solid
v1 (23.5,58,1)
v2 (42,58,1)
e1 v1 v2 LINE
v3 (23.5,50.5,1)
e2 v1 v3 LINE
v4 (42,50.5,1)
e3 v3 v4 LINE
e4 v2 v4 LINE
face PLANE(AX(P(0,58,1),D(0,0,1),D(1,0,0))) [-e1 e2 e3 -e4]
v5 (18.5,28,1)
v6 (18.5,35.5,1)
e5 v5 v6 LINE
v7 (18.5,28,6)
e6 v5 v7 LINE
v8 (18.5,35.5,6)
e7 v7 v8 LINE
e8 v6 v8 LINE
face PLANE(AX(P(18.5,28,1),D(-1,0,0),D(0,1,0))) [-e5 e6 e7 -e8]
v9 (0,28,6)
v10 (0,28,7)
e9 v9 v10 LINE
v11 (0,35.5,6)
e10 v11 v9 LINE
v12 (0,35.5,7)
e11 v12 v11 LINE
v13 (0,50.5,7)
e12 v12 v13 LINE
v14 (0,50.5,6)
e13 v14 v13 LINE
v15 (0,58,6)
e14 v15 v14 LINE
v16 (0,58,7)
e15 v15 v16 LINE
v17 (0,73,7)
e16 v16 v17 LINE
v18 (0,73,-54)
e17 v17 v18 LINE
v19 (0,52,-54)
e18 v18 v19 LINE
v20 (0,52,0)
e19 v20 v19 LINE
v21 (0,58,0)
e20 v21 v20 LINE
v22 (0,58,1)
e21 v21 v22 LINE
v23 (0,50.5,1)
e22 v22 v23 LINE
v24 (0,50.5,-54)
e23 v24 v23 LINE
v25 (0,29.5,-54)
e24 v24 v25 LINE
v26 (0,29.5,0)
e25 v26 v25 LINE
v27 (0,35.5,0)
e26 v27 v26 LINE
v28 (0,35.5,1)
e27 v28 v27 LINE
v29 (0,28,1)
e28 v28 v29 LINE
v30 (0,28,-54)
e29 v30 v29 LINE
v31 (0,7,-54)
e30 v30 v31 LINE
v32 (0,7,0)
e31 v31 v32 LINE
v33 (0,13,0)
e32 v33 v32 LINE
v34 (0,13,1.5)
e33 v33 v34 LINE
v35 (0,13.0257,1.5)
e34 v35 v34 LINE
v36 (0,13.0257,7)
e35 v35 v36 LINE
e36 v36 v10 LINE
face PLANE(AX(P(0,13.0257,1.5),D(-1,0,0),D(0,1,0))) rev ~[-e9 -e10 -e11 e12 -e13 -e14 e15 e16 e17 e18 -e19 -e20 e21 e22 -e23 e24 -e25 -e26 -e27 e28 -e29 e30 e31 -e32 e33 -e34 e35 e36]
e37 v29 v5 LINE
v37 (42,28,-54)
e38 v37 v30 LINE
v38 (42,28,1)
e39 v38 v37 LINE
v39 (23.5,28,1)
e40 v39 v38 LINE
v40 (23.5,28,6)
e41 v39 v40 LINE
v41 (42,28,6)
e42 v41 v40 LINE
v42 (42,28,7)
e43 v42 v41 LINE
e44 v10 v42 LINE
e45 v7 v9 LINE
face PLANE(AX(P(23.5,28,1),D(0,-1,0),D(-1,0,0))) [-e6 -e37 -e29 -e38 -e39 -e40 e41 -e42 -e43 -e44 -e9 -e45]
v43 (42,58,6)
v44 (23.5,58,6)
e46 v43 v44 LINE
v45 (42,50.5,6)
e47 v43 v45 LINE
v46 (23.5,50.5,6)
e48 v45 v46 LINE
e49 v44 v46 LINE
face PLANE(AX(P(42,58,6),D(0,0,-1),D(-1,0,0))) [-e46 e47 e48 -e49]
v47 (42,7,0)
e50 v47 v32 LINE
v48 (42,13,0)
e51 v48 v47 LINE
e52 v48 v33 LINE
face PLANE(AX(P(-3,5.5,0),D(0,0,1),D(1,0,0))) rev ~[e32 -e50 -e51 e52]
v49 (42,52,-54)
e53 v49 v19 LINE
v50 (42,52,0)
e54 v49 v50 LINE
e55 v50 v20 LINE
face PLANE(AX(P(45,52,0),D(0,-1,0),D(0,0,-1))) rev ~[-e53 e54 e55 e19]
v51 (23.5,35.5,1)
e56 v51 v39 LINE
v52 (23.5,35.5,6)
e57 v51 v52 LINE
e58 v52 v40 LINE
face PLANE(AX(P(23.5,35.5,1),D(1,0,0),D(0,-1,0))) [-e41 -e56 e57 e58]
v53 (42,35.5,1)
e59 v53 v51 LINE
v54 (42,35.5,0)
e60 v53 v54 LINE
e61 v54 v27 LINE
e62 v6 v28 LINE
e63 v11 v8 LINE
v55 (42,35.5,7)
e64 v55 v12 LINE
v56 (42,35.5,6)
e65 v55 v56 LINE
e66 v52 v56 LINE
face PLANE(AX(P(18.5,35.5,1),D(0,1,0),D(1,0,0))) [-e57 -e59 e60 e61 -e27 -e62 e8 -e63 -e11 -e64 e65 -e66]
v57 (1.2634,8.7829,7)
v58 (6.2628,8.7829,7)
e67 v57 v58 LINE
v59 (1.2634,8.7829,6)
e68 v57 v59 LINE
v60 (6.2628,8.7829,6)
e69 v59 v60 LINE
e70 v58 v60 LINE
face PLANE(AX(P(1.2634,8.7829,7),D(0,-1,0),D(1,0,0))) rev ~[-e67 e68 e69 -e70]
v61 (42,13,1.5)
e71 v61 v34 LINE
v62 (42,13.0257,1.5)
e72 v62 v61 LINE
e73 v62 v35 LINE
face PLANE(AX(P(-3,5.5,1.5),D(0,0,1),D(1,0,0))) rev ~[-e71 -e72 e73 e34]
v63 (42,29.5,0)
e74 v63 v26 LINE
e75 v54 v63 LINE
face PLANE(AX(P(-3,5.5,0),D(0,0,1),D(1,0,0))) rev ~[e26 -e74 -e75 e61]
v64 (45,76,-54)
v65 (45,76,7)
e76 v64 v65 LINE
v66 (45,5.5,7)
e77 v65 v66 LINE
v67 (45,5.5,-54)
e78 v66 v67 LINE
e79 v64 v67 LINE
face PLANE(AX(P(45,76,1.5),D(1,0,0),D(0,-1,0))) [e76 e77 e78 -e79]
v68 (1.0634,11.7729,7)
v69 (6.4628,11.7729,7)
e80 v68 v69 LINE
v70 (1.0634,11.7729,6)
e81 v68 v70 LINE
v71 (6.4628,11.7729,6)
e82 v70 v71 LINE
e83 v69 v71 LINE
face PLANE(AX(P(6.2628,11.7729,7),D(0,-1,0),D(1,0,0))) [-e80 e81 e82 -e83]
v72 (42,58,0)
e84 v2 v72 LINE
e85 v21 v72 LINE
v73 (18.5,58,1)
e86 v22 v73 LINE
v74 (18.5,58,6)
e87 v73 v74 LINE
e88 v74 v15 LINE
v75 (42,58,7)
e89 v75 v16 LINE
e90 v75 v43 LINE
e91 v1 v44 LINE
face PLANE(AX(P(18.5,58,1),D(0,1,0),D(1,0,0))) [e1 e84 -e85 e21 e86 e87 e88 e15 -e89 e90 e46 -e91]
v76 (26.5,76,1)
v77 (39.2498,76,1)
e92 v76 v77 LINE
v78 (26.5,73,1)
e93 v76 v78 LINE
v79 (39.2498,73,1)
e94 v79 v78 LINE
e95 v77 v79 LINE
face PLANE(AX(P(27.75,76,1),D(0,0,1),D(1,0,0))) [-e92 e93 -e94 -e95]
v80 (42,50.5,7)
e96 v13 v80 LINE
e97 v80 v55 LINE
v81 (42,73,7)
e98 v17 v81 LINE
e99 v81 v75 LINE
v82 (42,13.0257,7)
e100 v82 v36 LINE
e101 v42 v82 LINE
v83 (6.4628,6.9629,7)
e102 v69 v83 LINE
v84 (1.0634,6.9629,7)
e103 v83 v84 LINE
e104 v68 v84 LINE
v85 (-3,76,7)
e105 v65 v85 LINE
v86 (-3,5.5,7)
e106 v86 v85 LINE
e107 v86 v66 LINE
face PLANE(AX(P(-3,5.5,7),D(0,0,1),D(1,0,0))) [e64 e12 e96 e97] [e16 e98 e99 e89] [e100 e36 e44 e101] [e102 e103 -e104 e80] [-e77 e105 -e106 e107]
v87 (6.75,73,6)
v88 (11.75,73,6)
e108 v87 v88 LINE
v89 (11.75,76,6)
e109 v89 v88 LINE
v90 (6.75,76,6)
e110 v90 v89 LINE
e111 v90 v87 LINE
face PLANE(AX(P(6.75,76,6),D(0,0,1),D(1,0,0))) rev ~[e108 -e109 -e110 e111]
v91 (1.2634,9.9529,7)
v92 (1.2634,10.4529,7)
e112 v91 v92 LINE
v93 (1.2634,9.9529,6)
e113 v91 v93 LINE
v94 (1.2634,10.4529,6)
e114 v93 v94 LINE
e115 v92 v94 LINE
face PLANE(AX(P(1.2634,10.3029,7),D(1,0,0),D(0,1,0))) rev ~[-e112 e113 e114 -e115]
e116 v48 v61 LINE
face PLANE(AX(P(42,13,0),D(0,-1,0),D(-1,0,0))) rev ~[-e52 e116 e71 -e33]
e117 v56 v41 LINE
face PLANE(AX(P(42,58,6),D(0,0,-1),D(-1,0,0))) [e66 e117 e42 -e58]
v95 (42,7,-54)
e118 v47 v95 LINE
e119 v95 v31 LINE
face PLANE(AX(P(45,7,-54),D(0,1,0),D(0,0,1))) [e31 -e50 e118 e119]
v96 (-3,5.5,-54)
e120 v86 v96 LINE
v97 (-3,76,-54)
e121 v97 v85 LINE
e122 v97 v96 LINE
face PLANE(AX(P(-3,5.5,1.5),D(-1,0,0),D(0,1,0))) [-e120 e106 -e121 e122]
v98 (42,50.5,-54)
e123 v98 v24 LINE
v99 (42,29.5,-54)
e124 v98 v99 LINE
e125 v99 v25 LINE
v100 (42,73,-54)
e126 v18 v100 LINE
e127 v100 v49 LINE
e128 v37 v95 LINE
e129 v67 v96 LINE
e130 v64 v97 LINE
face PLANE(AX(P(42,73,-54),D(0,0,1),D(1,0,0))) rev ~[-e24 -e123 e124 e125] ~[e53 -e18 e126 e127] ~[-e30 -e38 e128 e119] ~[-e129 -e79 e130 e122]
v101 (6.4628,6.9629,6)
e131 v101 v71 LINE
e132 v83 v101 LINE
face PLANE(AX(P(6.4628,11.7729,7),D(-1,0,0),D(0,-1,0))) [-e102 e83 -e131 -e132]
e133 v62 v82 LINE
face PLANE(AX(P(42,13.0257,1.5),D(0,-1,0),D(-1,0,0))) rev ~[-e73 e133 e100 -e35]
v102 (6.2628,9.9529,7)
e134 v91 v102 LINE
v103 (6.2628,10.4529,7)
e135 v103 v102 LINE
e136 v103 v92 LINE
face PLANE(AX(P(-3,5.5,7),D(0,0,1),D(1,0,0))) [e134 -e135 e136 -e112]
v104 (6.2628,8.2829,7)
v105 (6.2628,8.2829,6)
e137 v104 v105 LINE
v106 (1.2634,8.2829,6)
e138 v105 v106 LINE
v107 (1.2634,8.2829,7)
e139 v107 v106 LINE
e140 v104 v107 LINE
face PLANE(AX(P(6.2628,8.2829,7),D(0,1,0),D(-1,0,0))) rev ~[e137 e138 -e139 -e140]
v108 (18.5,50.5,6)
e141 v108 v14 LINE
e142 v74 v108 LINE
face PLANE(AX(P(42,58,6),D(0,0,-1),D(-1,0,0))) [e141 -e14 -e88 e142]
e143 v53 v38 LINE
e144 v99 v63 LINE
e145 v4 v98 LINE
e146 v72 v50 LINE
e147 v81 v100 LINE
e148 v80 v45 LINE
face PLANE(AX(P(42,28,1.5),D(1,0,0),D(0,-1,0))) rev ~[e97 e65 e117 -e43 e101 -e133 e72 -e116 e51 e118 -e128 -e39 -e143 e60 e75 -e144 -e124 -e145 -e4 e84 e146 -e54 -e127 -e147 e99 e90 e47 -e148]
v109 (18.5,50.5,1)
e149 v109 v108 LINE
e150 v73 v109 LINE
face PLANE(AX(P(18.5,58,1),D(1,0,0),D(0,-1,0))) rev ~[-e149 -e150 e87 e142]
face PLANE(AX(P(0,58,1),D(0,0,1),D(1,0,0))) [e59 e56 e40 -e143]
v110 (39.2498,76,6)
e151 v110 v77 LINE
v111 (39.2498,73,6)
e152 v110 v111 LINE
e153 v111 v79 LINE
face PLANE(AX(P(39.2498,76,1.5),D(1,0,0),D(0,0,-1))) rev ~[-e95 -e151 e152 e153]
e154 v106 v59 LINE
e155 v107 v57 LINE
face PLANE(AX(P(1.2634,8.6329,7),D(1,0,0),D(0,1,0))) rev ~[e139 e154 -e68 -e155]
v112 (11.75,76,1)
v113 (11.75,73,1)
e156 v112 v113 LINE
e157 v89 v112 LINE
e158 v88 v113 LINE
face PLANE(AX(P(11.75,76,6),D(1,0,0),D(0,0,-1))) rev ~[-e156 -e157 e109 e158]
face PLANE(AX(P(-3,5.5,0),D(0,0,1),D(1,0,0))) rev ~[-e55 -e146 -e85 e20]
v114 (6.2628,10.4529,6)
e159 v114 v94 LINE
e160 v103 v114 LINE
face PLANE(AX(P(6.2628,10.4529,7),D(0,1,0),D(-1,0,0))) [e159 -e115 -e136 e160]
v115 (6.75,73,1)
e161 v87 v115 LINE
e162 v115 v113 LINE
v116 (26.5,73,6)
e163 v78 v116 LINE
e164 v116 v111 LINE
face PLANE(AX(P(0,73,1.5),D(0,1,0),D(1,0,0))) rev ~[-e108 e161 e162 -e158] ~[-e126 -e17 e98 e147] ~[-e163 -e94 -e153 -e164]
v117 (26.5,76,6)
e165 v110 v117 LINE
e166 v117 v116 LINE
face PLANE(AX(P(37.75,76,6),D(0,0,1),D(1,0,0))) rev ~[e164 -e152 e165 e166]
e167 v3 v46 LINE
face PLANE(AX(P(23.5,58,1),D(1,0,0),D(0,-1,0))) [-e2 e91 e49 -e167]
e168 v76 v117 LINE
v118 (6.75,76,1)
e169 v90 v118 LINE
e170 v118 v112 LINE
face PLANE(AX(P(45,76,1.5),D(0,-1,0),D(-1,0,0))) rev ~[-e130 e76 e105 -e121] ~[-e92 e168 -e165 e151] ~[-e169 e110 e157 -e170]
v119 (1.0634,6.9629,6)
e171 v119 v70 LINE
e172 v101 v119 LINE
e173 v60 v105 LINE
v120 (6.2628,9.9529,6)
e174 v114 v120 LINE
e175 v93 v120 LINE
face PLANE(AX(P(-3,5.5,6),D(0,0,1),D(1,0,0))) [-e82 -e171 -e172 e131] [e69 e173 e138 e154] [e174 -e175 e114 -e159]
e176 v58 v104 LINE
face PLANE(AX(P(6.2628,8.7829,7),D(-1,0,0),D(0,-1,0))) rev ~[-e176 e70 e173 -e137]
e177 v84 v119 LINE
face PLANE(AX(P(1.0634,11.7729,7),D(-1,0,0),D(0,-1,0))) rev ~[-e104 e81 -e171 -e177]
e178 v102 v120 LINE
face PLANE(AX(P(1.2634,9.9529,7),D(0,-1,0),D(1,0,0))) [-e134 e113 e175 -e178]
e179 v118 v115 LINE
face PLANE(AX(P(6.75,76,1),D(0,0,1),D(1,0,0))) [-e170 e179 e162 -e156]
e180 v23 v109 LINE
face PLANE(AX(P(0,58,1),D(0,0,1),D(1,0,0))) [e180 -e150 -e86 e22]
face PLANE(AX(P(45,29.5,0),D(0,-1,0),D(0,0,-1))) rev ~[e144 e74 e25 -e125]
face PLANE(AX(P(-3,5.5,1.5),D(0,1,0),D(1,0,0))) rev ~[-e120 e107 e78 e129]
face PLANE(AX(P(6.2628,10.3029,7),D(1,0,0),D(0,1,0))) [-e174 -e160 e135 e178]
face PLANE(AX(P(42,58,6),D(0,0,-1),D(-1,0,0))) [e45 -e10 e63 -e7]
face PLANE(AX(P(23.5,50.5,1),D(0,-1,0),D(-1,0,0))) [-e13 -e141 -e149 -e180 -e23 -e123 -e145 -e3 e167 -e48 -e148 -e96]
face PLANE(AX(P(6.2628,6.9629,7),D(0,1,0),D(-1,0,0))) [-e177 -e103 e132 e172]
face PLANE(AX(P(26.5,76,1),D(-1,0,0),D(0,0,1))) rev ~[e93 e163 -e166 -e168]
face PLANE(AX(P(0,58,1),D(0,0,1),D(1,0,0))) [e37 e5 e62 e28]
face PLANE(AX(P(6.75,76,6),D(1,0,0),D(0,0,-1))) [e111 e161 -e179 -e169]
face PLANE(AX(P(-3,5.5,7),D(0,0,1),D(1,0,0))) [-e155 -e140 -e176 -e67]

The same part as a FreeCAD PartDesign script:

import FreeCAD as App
import Part
import Sketcher

V = App.Vector
Q = App.Units.Quantity

doc = App.newDocument("Part")
body = doc.addObject("PartDesign::Body", "Body")
body.AllowCompound = True

# Sketch on XZ plane
sketch1 = body.newObject("Sketcher::SketchObject", "Sketch")
sketch1.AttachmentSupport = (doc.getObject("XZ_Plane"), [""])
sketch1.MapMode = "FlatFace"
sketch1.AttachmentOffset = App.Placement(V(0, 0, -73), App.Rotation())
sketch1.addGeometry([
    Part.LineSegment(V(0, -54, 0), V(0, 0, 0)),  # 0
    Part.LineSegment(V(0, 0, 0), V(-3, 0, 0)),  # 1
    Part.LineSegment(V(-3, 0, 0), V(-3, -54, 0)),  # 2
    Part.LineSegment(V(-3, -54, 0), V(0, -54, 0)),  # 3
    Part.LineSegment(V(42, 0, 0), V(42, -54, 0)),  # 4
    Part.LineSegment(V(42, -54, 0), V(45, -54, 0)),  # 5
    Part.LineSegment(V(45, -54, 0), V(45, 0, 0)),  # 6
    Part.LineSegment(V(45, 0, 0), V(42, 0, 0)),  # 7
], False)
sketch1.addConstraint([
    Sketcher.Constraint("Coincident", 0, 2, 1, 1),
    Sketcher.Constraint("Coincident", 1, 2, 2, 1),
    Sketcher.Constraint("Coincident", 2, 2, 3, 1),
    Sketcher.Constraint("Coincident", 3, 2, 0, 1),
    Sketcher.Constraint("Coincident", 4, 2, 5, 1),
    Sketcher.Constraint("Coincident", 5, 2, 6, 1),
    Sketcher.Constraint("Coincident", 6, 2, 7, 1),
    Sketcher.Constraint("Coincident", 7, 2, 4, 1),
    Sketcher.Constraint("Vertical", 0),
    Sketcher.Constraint("Horizontal", 1),
    Sketcher.Constraint("Vertical", 2),
    Sketcher.Constraint("Horizontal", 3),
    Sketcher.Constraint("Vertical", 4),
    Sketcher.Constraint("Horizontal", 5),
    Sketcher.Constraint("Vertical", 6),
    Sketcher.Constraint("Horizontal", 7),
    Sketcher.Constraint("Coincident", 0, 2, -1, 1),
    Sketcher.Constraint("PointOnObject", 6, 2, -1),
    Sketcher.Constraint("Horizontal", 3, 2, 4, 2),
    Sketcher.Constraint("Equal", 3, 5),
    Sketcher.Constraint("DistanceX", 1, 2, 1, 1, Q("3 mm")),
    Sketcher.Constraint("DistanceY", 0, 1, 0, 2, Q("54 mm")),
    Sketcher.Constraint("DistanceX", -1, 1, 4, 2, Q("42 mm")),
])
pad1 = body.newObject("PartDesign::Pad", "Pad")
pad1.Profile = sketch1
pad1.Length = 67.5

# Sketch on XZ plane
sketch2 = body.newObject("Sketcher::SketchObject", "Sketch001")
sketch2.AttachmentSupport = (doc.getObject("XZ_Plane"), [""])
sketch2.MapMode = "FlatFace"
sketch2.AttachmentOffset = App.Placement(V(0, 0, -73), App.Rotation())
sketch2.addGeometry([
    Part.LineSegment(V(45, -57, 0), V(-3, -57, 0)),  # 0
    Part.LineSegment(V(-3, -57, 0), V(-3, 3, 0)),  # 1
    Part.LineSegment(V(-3, 3, 0), V(45, 3, 0)),  # 2
    Part.LineSegment(V(45, 3, 0), V(45, -57, 0)),  # 3
    Part.Circle(V(4.2, -5.2, 0), V(0, 0, 1), 1.2),  # 4
    Part.Circle(V(37.7, -5.2, 0), V(0, 0, 1), 1.2),  # 5
    Part.Circle(V(4.2, -48.8, 0), V(0, 0, 1), 1.2),  # 6
    Part.Circle(V(37.7, -48.8, 0), V(0, 0, 1), 1.2),  # 7
], False)
sketch2.addConstraint([
    Sketcher.Constraint("Coincident", 0, 2, 1, 1),
    Sketcher.Constraint("Coincident", 1, 2, 2, 1),
    Sketcher.Constraint("Coincident", 2, 2, 3, 1),
    Sketcher.Constraint("Coincident", 3, 2, 0, 1),
    Sketcher.Constraint("Horizontal", 0),
    Sketcher.Constraint("Vertical", 1),
    Sketcher.Constraint("Horizontal", 2),
    Sketcher.Constraint("Vertical", 3),
    Sketcher.Constraint("Equal", 4, 5),
    Sketcher.Constraint("Equal", 5, 6),
    Sketcher.Constraint("Equal", 6, 7),
    Sketcher.Constraint("Horizontal", 4, 3, 5, 3),
    Sketcher.Constraint("Horizontal", 6, 3, 7, 3),
    Sketcher.Constraint("Vertical", 4, 3, 6, 3),
    Sketcher.Constraint("Vertical", 5, 3, 7, 3),
    Sketcher.Constraint("Diameter", 4, Q("2.5 mm")),
    Sketcher.Constraint("DistanceX", 0, 2, 0, 1, Q("48 mm")),
    Sketcher.Constraint("DistanceY", 1, 1, 1, 2, Q("60 mm")),
    Sketcher.Constraint("DistanceX", 0, 2, -1, 1, Q("3 mm")),
    Sketcher.Constraint("DistanceY", 0, 2, -1, 1, Q("57 mm")),
    Sketcher.Constraint("DistanceX", 4, 3, 5, 3, Q("33.5 mm")),
    Sketcher.Constraint("DistanceY", 6, 3, 4, 3, Q("43.5 mm")),
    Sketcher.Constraint("DistanceY", 4, 3, -1, 1, Q("5.25 mm")),
    Sketcher.Constraint("DistanceX", -1, 1, 4, 3, Q("4.2498 mm")),
])
pad2 = body.newObject("PartDesign::Pad", "Pad001")
pad2.Profile = sketch2
pad2.Length = 3
pad2.Reversed = True

# Sketch on XZ plane
sketch3 = body.newObject("Sketcher::SketchObject", "Sketch002")
sketch3.AttachmentSupport = (doc.getObject("XZ_Plane"), [""])
sketch3.MapMode = "FlatFace"
sketch3.AttachmentOffset = App.Placement(V(0, 0, -76), App.Rotation())
sketch3.addGeometry([
    Part.Circle(V(4.2, -48.8, 0), V(0, 0, 1), 1.2),
    Part.Circle(V(37.7, -48.8, 0), V(0, 0, 1), 1.2),
    Part.Circle(V(37.7, -5.2, 0), V(0, 0, 1), 1.2),
    Part.Circle(V(4.2, -5.2, 0), V(0, 0, 1), 1.2),
], False)
sketch3.addConstraint([
    Sketcher.Constraint("Equal", 0, 1),
    Sketcher.Constraint("Equal", 1, 2),
    Sketcher.Constraint("Equal", 2, 3),
    Sketcher.Constraint("Horizontal", 0, 3, 1, 3),
    Sketcher.Constraint("Horizontal", 2, 3, 3, 3),
    Sketcher.Constraint("Vertical", 1, 3, 2, 3),
    Sketcher.Constraint("Vertical", 0, 3, 3, 3),
    Sketcher.Constraint("Diameter", 0, Q("2.5 mm")),
    Sketcher.Constraint("DistanceX", 0, 3, 1, 3, Q("33.5 mm")),
    Sketcher.Constraint("DistanceY", 1, 3, 2, 3, Q("43.5 mm")),
    Sketcher.Constraint("DistanceY", 0, 3, -1, 1, Q("48.75 mm")),
    Sketcher.Constraint("DistanceX", -1, 1, 0, 3, Q("4.2498 mm")),
])
pad3 = body.newObject("PartDesign::Pad", "Pad002")
pad3.Profile = sketch3
pad3.Length = 3

# Sketch on YZ plane
sketch4 = body.newObject("Sketcher::SketchObject", "Sketch003")
sketch4.AttachmentSupport = (doc.getObject("YZ_Plane"), [""])
sketch4.MapMode = "FlatFace"
sketch4.AttachmentOffset = App.Placement(V(0, 0, 45), App.Rotation())
sketch4.addGeometry([
    Part.LineSegment(V(7, 0, 0), V(5.5, 0, 0)),  # 0
    Part.LineSegment(V(5.5, 0, 0), V(5.5, -54, 0)),  # 1
    Part.LineSegment(V(5.5, -54, 0), V(7, -54, 0)),  # 2
    Part.LineSegment(V(7, -54, 0), V(7, 0, 0)),  # 3
    Part.LineSegment(V(29.5, 0, 0), V(28, 0, 0)),  # 4
    Part.LineSegment(V(28, 0, 0), V(28, -54, 0)),  # 5
    Part.LineSegment(V(28, -54, 0), V(29.5, -54, 0)),  # 6
    Part.LineSegment(V(29.5, -54, 0), V(29.5, 0, 0)),  # 7
    Part.LineSegment(V(52, 0, 0), V(50.5, 0, 0)),  # 8
    Part.LineSegment(V(50.5, 0, 0), V(50.5, -54, 0)),  # 9
    Part.LineSegment(V(50.5, -54, 0), V(52, -54, 0)),  # 10
    Part.LineSegment(V(52, -54, 0), V(52, 0, 0)),  # 11
], False)
sketch4.addConstraint([
    Sketcher.Constraint("Coincident", 0, 2, 1, 1),
    Sketcher.Constraint("Coincident", 1, 2, 2, 1),
    Sketcher.Constraint("Coincident", 2, 2, 3, 1),
    Sketcher.Constraint("Coincident", 3, 2, 0, 1),
    Sketcher.Constraint("Coincident", 4, 2, 5, 1),
    Sketcher.Constraint("Coincident", 5, 2, 6, 1),
    Sketcher.Constraint("Coincident", 6, 2, 7, 1),
    Sketcher.Constraint("Coincident", 7, 2, 4, 1),
    Sketcher.Constraint("Coincident", 8, 2, 9, 1),
    Sketcher.Constraint("Coincident", 9, 2, 10, 1),
    Sketcher.Constraint("Coincident", 10, 2, 11, 1),
    Sketcher.Constraint("Coincident", 11, 2, 8, 1),
    Sketcher.Constraint("Horizontal", 0),
    Sketcher.Constraint("Vertical", 1),
    Sketcher.Constraint("Horizontal", 2),
    Sketcher.Constraint("Vertical", 3),
    Sketcher.Constraint("Horizontal", 4),
    Sketcher.Constraint("Vertical", 5),
    Sketcher.Constraint("Horizontal", 6),
    Sketcher.Constraint("Vertical", 7),
    Sketcher.Constraint("Horizontal", 8),
    Sketcher.Constraint("Vertical", 9),
    Sketcher.Constraint("Horizontal", 10),
    Sketcher.Constraint("Vertical", 11),
    Sketcher.Constraint("PointOnObject", 0, 2, -1),
    Sketcher.Constraint("PointOnObject", 4, 2, -1),
    Sketcher.Constraint("PointOnObject", 8, 2, -1),
    Sketcher.Constraint("Horizontal", 2, 2, 5, 2),
    Sketcher.Constraint("Horizontal", 6, 2, 9, 2),
    Sketcher.Constraint("Equal", 2, 4),
    Sketcher.Constraint("Equal", 6, 8),
    Sketcher.Constraint("DistanceX", 0, 2, 0, 1, Q("1.5 mm")),
    Sketcher.Constraint("DistanceX", 3, 2, 4, 2, Q("21 mm")),
    Sketcher.Constraint("DistanceX", 7, 2, 8, 2, Q("21 mm")),
    Sketcher.Constraint("DistanceY", 1, 2, 1, 1, Q("54 mm")),
    Sketcher.Constraint("DistanceX", -1, 1, 2, 2, Q("7 mm")),
])
pad4 = body.newObject("PartDesign::Pad", "Pad003")
pad4.Profile = sketch4
pad4.Length = 47.25
pad4.Reversed = True

# Sketch on XY plane
sketch5 = body.newObject("Sketcher::SketchObject", "Sketch004")
sketch5.AttachmentSupport = (doc.getObject("XY_Plane"), [""])
sketch5.MapMode = "FlatFace"
sketch5.addGeometry([
    Part.LineSegment(V(42, 58, 0), V(0, 58, 0)),  # 0
    Part.LineSegment(V(0, 58, 0), V(0, 52, 0)),  # 1
    Part.LineSegment(V(0, 52, 0), V(42, 52, 0)),  # 2
    Part.LineSegment(V(42, 52, 0), V(42, 58, 0)),  # 3
    Part.LineSegment(V(42, 30, 0), V(42, 36, 0)),  # 4
    Part.LineSegment(V(42, 36, 0), V(0, 36, 0)),  # 5
    Part.LineSegment(V(0, 36, 0), V(0, 30, 0)),  # 6
    Part.LineSegment(V(0, 30, 0), V(42, 30, 0)),  # 7
    Part.LineSegment(V(42, 7, 0), V(42, 13, 0)),  # 8
    Part.LineSegment(V(42, 13, 0), V(0, 13, 0)),  # 9
    Part.LineSegment(V(0, 13, 0), V(0, 7, 0)),  # 10
    Part.LineSegment(V(0, 7, 0), V(42, 7, 0)),  # 11
], False)
sketch5.addConstraint([
    Sketcher.Constraint("Coincident", 0, 2, 1, 1),
    Sketcher.Constraint("Coincident", 1, 2, 2, 1),
    Sketcher.Constraint("Coincident", 2, 2, 3, 1),
    Sketcher.Constraint("Coincident", 3, 2, 0, 1),
    Sketcher.Constraint("Coincident", 4, 2, 5, 1),
    Sketcher.Constraint("Coincident", 5, 2, 6, 1),
    Sketcher.Constraint("Coincident", 6, 2, 7, 1),
    Sketcher.Constraint("Coincident", 7, 2, 4, 1),
    Sketcher.Constraint("Coincident", 8, 2, 9, 1),
    Sketcher.Constraint("Coincident", 9, 2, 10, 1),
    Sketcher.Constraint("Coincident", 10, 2, 11, 1),
    Sketcher.Constraint("Coincident", 11, 2, 8, 1),
    Sketcher.Constraint("Horizontal", 0),
    Sketcher.Constraint("Vertical", 1),
    Sketcher.Constraint("Horizontal", 2),
    Sketcher.Constraint("Vertical", 3),
    Sketcher.Constraint("Vertical", 4),
    Sketcher.Constraint("Horizontal", 5),
    Sketcher.Constraint("Vertical", 6),
    Sketcher.Constraint("Horizontal", 7),
    Sketcher.Constraint("Vertical", 8),
    Sketcher.Constraint("Horizontal", 9),
    Sketcher.Constraint("Vertical", 10),
    Sketcher.Constraint("Horizontal", 11),
    Sketcher.Constraint("PointOnObject", 0, 2, -2),
    Sketcher.Constraint("PointOnObject", 5, 2, -2),
    Sketcher.Constraint("PointOnObject", 9, 2, -2),
    Sketcher.Constraint("Vertical", 3, 2, 4, 2),
    Sketcher.Constraint("Vertical", 7, 2, 8, 2),
    Sketcher.Constraint("Equal", 3, 4),
    Sketcher.Constraint("Equal", 6, 8),
    Sketcher.Constraint("DistanceY", 1, 2, 1, 1, Q("6 mm")),
    Sketcher.Constraint("DistanceX", 0, 2, 0, 1, Q("42 mm")),
    Sketcher.Constraint("DistanceY", -1, 1, 0, 2, Q("58 mm")),
    Sketcher.Constraint("DistanceY", -1, 1, 8, 2, Q("13 mm")),
    Sketcher.Constraint("DistanceY", -1, 1, 4, 2, Q("35.5 mm")),
])
pad5 = body.newObject("PartDesign::Pad", "Pad004")
pad5.Profile = sketch5
pad5.Length = 1.5

# Sketch on XY plane
sketch6 = body.newObject("Sketcher::SketchObject", "Sketch005")
sketch6.AttachmentSupport = (doc.getObject("XY_Plane"), [""])
sketch6.MapMode = "FlatFace"
sketch6.addGeometry([
    Part.LineSegment(V(-3, 5.5, 0), V(45, 5.5, 0)),  # 0
    Part.LineSegment(V(45, 5.5, 0), V(45, 73, 0)),  # 1
    Part.LineSegment(V(45, 73, 0), V(42, 73, 0)),  # 2
    Part.LineSegment(V(42, 73, 0), V(42, 52, 0)),  # 3
    Part.LineSegment(V(42, 52, 0), V(0, 52, 0)),  # 4
    Part.LineSegment(V(0, 52, 0), V(0, 73, 0)),  # 5
    Part.LineSegment(V(0, 73, 0), V(-3, 73, 0)),  # 6
    Part.LineSegment(V(-3, 73, 0), V(-3, 5.5, 0)),  # 7
    Part.LineSegment(V(0, 7, 0), V(0, 28, 0)),  # 8
    Part.LineSegment(V(0, 28, 0), V(42, 28, 0)),  # 9
    Part.LineSegment(V(42, 28, 0), V(42, 7, 0)),  # 10
    Part.LineSegment(V(42, 7, 0), V(0, 7, 0)),  # 11
    Part.LineSegment(V(42, 50.5, 0), V(42, 29.5, 0)),  # 12
    Part.LineSegment(V(42, 29.5, 0), V(0, 29.5, 0)),  # 13
    Part.LineSegment(V(0, 29.5, 0), V(0, 50.5, 0)),  # 14
    Part.LineSegment(V(0, 50.5, 0), V(42, 50.5, 0)),  # 15
], False)
sketch6.addConstraint([
    Sketcher.Constraint("Coincident", 0, 2, 1, 1),
    Sketcher.Constraint("Coincident", 1, 2, 2, 1),
    Sketcher.Constraint("Coincident", 2, 2, 3, 1),
    Sketcher.Constraint("Coincident", 3, 2, 4, 1),
    Sketcher.Constraint("Coincident", 4, 2, 5, 1),
    Sketcher.Constraint("Coincident", 5, 2, 6, 1),
    Sketcher.Constraint("Coincident", 6, 2, 7, 1),
    Sketcher.Constraint("Coincident", 7, 2, 0, 1),
    Sketcher.Constraint("Coincident", 8, 2, 9, 1),
    Sketcher.Constraint("Coincident", 9, 2, 10, 1),
    Sketcher.Constraint("Coincident", 10, 2, 11, 1),
    Sketcher.Constraint("Coincident", 11, 2, 8, 1),
    Sketcher.Constraint("Coincident", 12, 2, 13, 1),
    Sketcher.Constraint("Coincident", 13, 2, 14, 1),
    Sketcher.Constraint("Coincident", 14, 2, 15, 1),
    Sketcher.Constraint("Coincident", 15, 2, 12, 1),
    Sketcher.Constraint("Horizontal", 0),
    Sketcher.Constraint("Vertical", 1),
    Sketcher.Constraint("Horizontal", 2),
    Sketcher.Constraint("Vertical", 3),
    Sketcher.Constraint("Horizontal", 4),
    Sketcher.Constraint("Vertical", 5),
    Sketcher.Constraint("Horizontal", 6),
    Sketcher.Constraint("Vertical", 7),
    Sketcher.Constraint("Vertical", 8),
    Sketcher.Constraint("Horizontal", 9),
    Sketcher.Constraint("Vertical", 10),
    Sketcher.Constraint("Horizontal", 11),
    Sketcher.Constraint("Vertical", 12),
    Sketcher.Constraint("Horizontal", 13),
    Sketcher.Constraint("Vertical", 14),
    Sketcher.Constraint("Horizontal", 15),
    Sketcher.Constraint("PointOnObject", 4, 2, -2),
    Sketcher.Constraint("PointOnObject", 8, 2, -2),
    Sketcher.Constraint("PointOnObject", 13, 2, -2),
    Sketcher.Constraint("Horizontal", 2, 2, 5, 2),
    Sketcher.Constraint("Vertical", 3, 2, 9, 2),
    Sketcher.Constraint("Vertical", 10, 2, 12, 2),
    Sketcher.Constraint("Equal", 2, 6),
    Sketcher.Constraint("Equal", 5, 8),
    Sketcher.Constraint("Equal", 10, 12),
    Sketcher.Constraint("DistanceY", 3, 2, 3, 1, Q("21 mm")),
    Sketcher.Constraint("DistanceX", 0, 1, 0, 2, Q("48 mm")),
    Sketcher.Constraint("DistanceX", 2, 2, 2, 1, Q("3 mm")),
    Sketcher.Constraint("DistanceY", 1, 1, 1, 2, Q("67.5 mm")),
    Sketcher.Constraint("DistanceY", -1, 1, 1, 2, Q("73 mm")),
    Sketcher.Constraint("DistanceY", -1, 1, 8, 2, Q("28 mm")),
    Sketcher.Constraint("DistanceY", 0, 2, 12, 2, Q("24 mm")),
])
pad6 = body.newObject("PartDesign::Pad", "Pad005")
pad6.Profile = sketch6
pad6.Length = 1.5

# Sketch on XY plane
sketch7 = body.newObject("Sketcher::SketchObject", "Sketch006")
sketch7.AttachmentSupport = (doc.getObject("XY_Plane"), [""])
sketch7.MapMode = "FlatFace"
sketch7.AttachmentOffset = App.Placement(V(0, 0, 3), App.Rotation())
sketch7.addGeometry([
    Part.LineSegment(V(-3, 73, 0), V(45, 73, 0)),
    Part.LineSegment(V(45, 73, 0), V(45, 76, 0)),
    Part.LineSegment(V(45, 76, 0), V(-3, 76, 0)),
    Part.LineSegment(V(-3, 76, 0), V(-3, 73, 0)),
], False)
sketch7.addConstraint([
    Sketcher.Constraint("Coincident", 0, 2, 1, 1),
    Sketcher.Constraint("Coincident", 1, 2, 2, 1),
    Sketcher.Constraint("Coincident", 2, 2, 3, 1),
    Sketcher.Constraint("Coincident", 3, 2, 0, 1),
    Sketcher.Constraint("Horizontal", 0),
    Sketcher.Constraint("Vertical", 1),
    Sketcher.Constraint("Horizontal", 2),
    Sketcher.Constraint("Vertical", 3),
    Sketcher.Constraint("DistanceX", 0, 1, 0, 2, Q("48 mm")),
    Sketcher.Constraint("DistanceY", 1, 1, 1, 2, Q("3 mm")),
    Sketcher.Constraint("DistanceX", -1, 1, 0, 2, Q("45 mm")),
    Sketcher.Constraint("DistanceY", -1, 1, 0, 2, Q("73 mm")),
])
pocket1 = body.newObject("PartDesign::Pocket", "Pocket")
pocket1.Profile = sketch7
pocket1.Length = 1.5

# Sketch on XY plane
sketch8 = body.newObject("Sketcher::SketchObject", "Sketch007")
sketch8.AttachmentSupport = (doc.getObject("XY_Plane"), [""])
sketch8.MapMode = "FlatFace"
sketch8.AttachmentOffset = App.Placement(V(0, 0, -57), App.Rotation())
sketch8.addGeometry([
    Part.LineSegment(V(-3, 76, 0), V(45, 76, 0)),
    Part.LineSegment(V(45, 76, 0), V(45, 73, 0)),
    Part.LineSegment(V(45, 73, 0), V(-3, 73, 0)),
    Part.LineSegment(V(-3, 73, 0), V(-3, 76, 0)),
], False)
sketch8.addConstraint([
    Sketcher.Constraint("Coincident", 0, 2, 1, 1),
    Sketcher.Constraint("Coincident", 1, 2, 2, 1),
    Sketcher.Constraint("Coincident", 2, 2, 3, 1),
    Sketcher.Constraint("Coincident", 3, 2, 0, 1),
    Sketcher.Constraint("Horizontal", 0),
    Sketcher.Constraint("Vertical", 1),
    Sketcher.Constraint("Horizontal", 2),
    Sketcher.Constraint("Vertical", 3),
    Sketcher.Constraint("DistanceX", 0, 1, 0, 2, Q("48 mm")),
    Sketcher.Constraint("DistanceY", 1, 2, 1, 1, Q("3 mm")),
    Sketcher.Constraint("DistanceX", -1, 1, 0, 2, Q("45 mm")),
    Sketcher.Constraint("DistanceY", -1, 1, 0, 2, Q("76 mm")),
])
pocket2 = body.newObject("PartDesign::Pocket", "Pocket001")
pocket2.Profile = sketch8
pocket2.Length = 3
pocket2.Reversed = True

# Sketch on XY plane
sketch9 = body.newObject("Sketcher::SketchObject", "Sketch008")
sketch9.AttachmentSupport = (doc.getObject("XY_Plane"), [""])
sketch9.MapMode = "FlatFace"
sketch9.AttachmentOffset = App.Placement(V(0, 0, 1.5), App.Rotation())
sketch9.addGeometry([
    Part.LineSegment(V(45, 6, 0), V(45, 76, 0)),  # 0
    Part.LineSegment(V(45, 76, 0), V(-3, 76, 0)),  # 1
    Part.LineSegment(V(-3, 76, 0), V(-3, 6, 0)),  # 2
    Part.LineSegment(V(-3, 6, 0), V(45, 6, 0)),  # 3
    Part.LineSegment(V(0, 13, 0), V(0, 28, 0)),  # 4
    Part.LineSegment(V(0, 28, 0), V(42, 28, 0)),  # 5
    Part.LineSegment(V(42, 28, 0), V(42, 13, 0)),  # 6
    Part.LineSegment(V(42, 13, 0), V(0, 13, 0)),  # 7
    Part.LineSegment(V(0, 36, 0), V(0, 50, 0)),  # 8
    Part.LineSegment(V(0, 50, 0), V(42, 50, 0)),  # 9
    Part.LineSegment(V(42, 50, 0), V(42, 36, 0)),  # 10
    Part.LineSegment(V(42, 36, 0), V(0, 36, 0)),  # 11
    Part.LineSegment(V(42, 58, 0), V(0, 58, 0)),  # 12
    Part.LineSegment(V(0, 58, 0), V(0, 73, 0)),  # 13
    Part.LineSegment(V(0, 73, 0), V(42, 73, 0)),  # 14
    Part.LineSegment(V(42, 73, 0), V(42, 58, 0)),  # 15
], False)
sketch9.addConstraint([
    Sketcher.Constraint("Coincident", 0, 2, 1, 1),
    Sketcher.Constraint("Coincident", 1, 2, 2, 1),
    Sketcher.Constraint("Coincident", 2, 2, 3, 1),
    Sketcher.Constraint("Coincident", 3, 2, 0, 1),
    Sketcher.Constraint("Coincident", 4, 2, 5, 1),
    Sketcher.Constraint("Coincident", 5, 2, 6, 1),
    Sketcher.Constraint("Coincident", 6, 2, 7, 1),
    Sketcher.Constraint("Coincident", 7, 2, 4, 1),
    Sketcher.Constraint("Coincident", 8, 2, 9, 1),
    Sketcher.Constraint("Coincident", 9, 2, 10, 1),
    Sketcher.Constraint("Coincident", 10, 2, 11, 1),
    Sketcher.Constraint("Coincident", 11, 2, 8, 1),
    Sketcher.Constraint("Coincident", 12, 2, 13, 1),
    Sketcher.Constraint("Coincident", 13, 2, 14, 1),
    Sketcher.Constraint("Coincident", 14, 2, 15, 1),
    Sketcher.Constraint("Coincident", 15, 2, 12, 1),
    Sketcher.Constraint("Vertical", 0),
    Sketcher.Constraint("Horizontal", 1),
    Sketcher.Constraint("Vertical", 2),
    Sketcher.Constraint("Horizontal", 3),
    Sketcher.Constraint("Vertical", 4),
    Sketcher.Constraint("Horizontal", 5),
    Sketcher.Constraint("Vertical", 6),
    Sketcher.Constraint("Horizontal", 7),
    Sketcher.Constraint("Vertical", 8),
    Sketcher.Constraint("Horizontal", 9),
    Sketcher.Constraint("Vertical", 10),
    Sketcher.Constraint("Horizontal", 11),
    Sketcher.Constraint("Horizontal", 12),
    Sketcher.Constraint("Vertical", 13),
    Sketcher.Constraint("Horizontal", 14),
    Sketcher.Constraint("Vertical", 15),
    Sketcher.Constraint("PointOnObject", 4, 2, -2),
    Sketcher.Constraint("PointOnObject", 8, 2, -2),
    Sketcher.Constraint("PointOnObject", 12, 2, -2),
    Sketcher.Constraint("Vertical", 6, 2, 9, 2),
    Sketcher.Constraint("Vertical", 10, 2, 14, 2),
    Sketcher.Constraint("Equal", 10, 13),
    Sketcher.Constraint("DistanceY", 8, 1, 8, 2, Q("15 mm")),
    Sketcher.Constraint("DistanceX", 1, 2, 1, 1, Q("48 mm")),
    Sketcher.Constraint("DistanceX", 5, 1, 5, 2, Q("42 mm")),
    Sketcher.Constraint("DistanceY", 0, 1, 0, 2, Q("70.5 mm")),
    Sketcher.Constraint("DistanceX", -1, 1, 0, 2, Q("45 mm")),
    Sketcher.Constraint("DistanceY", -1, 1, 0, 2, Q("76 mm")),
    Sketcher.Constraint("DistanceY", -1, 1, 4, 2, Q("28 mm")),
    Sketcher.Constraint("DistanceY", -1, 1, 12, 2, Q("58 mm")),
    Sketcher.Constraint("DistanceY", 2, 2, 8, 2, Q("45 mm")),
    Sketcher.Constraint("DistanceY", 4, 1, 4, 2, Q("14.9743 mm")),
])
pad7 = body.newObject("PartDesign::Pad", "Pad006")
pad7.Profile = sketch9
pad7.Length = 5.5

# Sketch on XZ plane
sketch10 = body.newObject("Sketcher::SketchObject", "Sketch009")
sketch10.AttachmentSupport = (doc.getObject("XZ_Plane"), [""])
sketch10.MapMode = "FlatFace"
sketch10.AttachmentOffset = App.Placement(V(0, 0, -58), App.Rotation())
sketch10.addGeometry([
    Part.LineSegment(V(42, 6, 0), V(42, 1, 0)),
    Part.LineSegment(V(42, 1, 0), V(0, 1, 0)),
    Part.LineSegment(V(0, 1, 0), V(0, 6, 0)),
    Part.LineSegment(V(0, 6, 0), V(42, 6, 0)),
], False)
sketch10.addConstraint([
    Sketcher.Constraint("Coincident", 0, 2, 1, 1),
    Sketcher.Constraint("Coincident", 1, 2, 2, 1),
    Sketcher.Constraint("Coincident", 2, 2, 3, 1),
    Sketcher.Constraint("Coincident", 3, 2, 0, 1),
    Sketcher.Constraint("Vertical", 0),
    Sketcher.Constraint("Horizontal", 1),
    Sketcher.Constraint("Vertical", 2),
    Sketcher.Constraint("Horizontal", 3),
    Sketcher.Constraint("PointOnObject", 1, 2, -2),
    Sketcher.Constraint("DistanceY", -1, 1, 0, 2, Q("1 mm")),
    Sketcher.Constraint("DistanceX", 1, 2, 1, 1, Q("42 mm")),
    Sketcher.Constraint("DistanceY", 0, 2, 0, 1, Q("5 mm")),
])
pocket3 = body.newObject("PartDesign::Pocket", "Pocket002")
pocket3.Profile = sketch10
pocket3.Length = 41.75
pocket3.Reversed = True

# Sketch on XY plane
sketch11 = body.newObject("Sketcher::SketchObject", "Sketch010")
sketch11.AttachmentSupport = (doc.getObject("XY_Plane"), [""])
sketch11.MapMode = "FlatFace"
sketch11.AttachmentOffset = App.Placement(V(0, 0, 1), App.Rotation())
sketch11.addGeometry([
    Part.LineSegment(V(18, 28, 0), V(24, 28, 0)),
    Part.LineSegment(V(24, 28, 0), V(24, 36, 0)),
    Part.LineSegment(V(24, 36, 0), V(18, 36, 0)),
    Part.LineSegment(V(18, 36, 0), V(18, 28, 0)),
], False)
sketch11.addConstraint([
    Sketcher.Constraint("Coincident", 0, 2, 1, 1),
    Sketcher.Constraint("Coincident", 1, 2, 2, 1),
    Sketcher.Constraint("Coincident", 2, 2, 3, 1),
    Sketcher.Constraint("Coincident", 3, 2, 0, 1),
    Sketcher.Constraint("Horizontal", 0),
    Sketcher.Constraint("Vertical", 1),
    Sketcher.Constraint("Horizontal", 2),
    Sketcher.Constraint("Vertical", 3),
    Sketcher.Constraint("DistanceX", 0, 1, 0, 2, Q("5 mm")),
    Sketcher.Constraint("DistanceY", 1, 1, 1, 2, Q("7.5 mm")),
    Sketcher.Constraint("DistanceY", -1, 1, 0, 2, Q("28 mm")),
    Sketcher.Constraint("DistanceX", -1, 1, 0, 2, Q("23.5 mm")),
])
pad8 = body.newObject("PartDesign::Pad", "Pad007")
pad8.Profile = sketch11
pad8.Length = 5.75

# Sketch on XY plane
sketch12 = body.newObject("Sketcher::SketchObject", "Sketch011")
sketch12.AttachmentSupport = (doc.getObject("XY_Plane"), [""])
sketch12.MapMode = "FlatFace"
sketch12.AttachmentOffset = App.Placement(V(0, 0, 1), App.Rotation())
sketch12.addGeometry([
    Part.LineSegment(V(24, 58, 0), V(18, 58, 0)),
    Part.LineSegment(V(18, 58, 0), V(18, 50, 0)),
    Part.LineSegment(V(18, 50, 0), V(24, 50, 0)),
    Part.LineSegment(V(24, 50, 0), V(24, 58, 0)),
], False)
sketch12.addConstraint([
    Sketcher.Constraint("Coincident", 0, 2, 1, 1),
    Sketcher.Constraint("Coincident", 1, 2, 2, 1),
    Sketcher.Constraint("Coincident", 2, 2, 3, 1),
    Sketcher.Constraint("Coincident", 3, 2, 0, 1),
    Sketcher.Constraint("Horizontal", 0),
    Sketcher.Constraint("Vertical", 1),
    Sketcher.Constraint("Horizontal", 2),
    Sketcher.Constraint("Vertical", 3),
    Sketcher.Constraint("DistanceX", 0, 2, 0, 1, Q("5 mm")),
    Sketcher.Constraint("DistanceY", 1, 2, 1, 1, Q("7.5 mm")),
    Sketcher.Constraint("DistanceY", -1, 1, 0, 2, Q("58 mm")),
    Sketcher.Constraint("DistanceX", -1, 1, 0, 2, Q("18.5 mm")),
])
pad9 = body.newObject("PartDesign::Pad", "Pad008")
pad9.Profile = sketch12
pad9.Length = 5.75

# Sketch on XZ plane
sketch13 = body.newObject("Sketcher::SketchObject", "Sketch012")
sketch13.AttachmentSupport = (doc.getObject("XZ_Plane"), [""])
sketch13.MapMode = "FlatFace"
sketch13.AttachmentOffset = App.Placement(V(0, 0, -76), App.Rotation())
sketch13.addGeometry([
    Part.LineSegment(V(7, 1, 0), V(7, 6, 0)),  # 0
    Part.LineSegment(V(7, 6, 0), V(12, 6, 0)),  # 1
    Part.LineSegment(V(12, 6, 0), V(12, 1, 0)),  # 2
    Part.LineSegment(V(12, 1, 0), V(7, 1, 0)),  # 3
    Part.LineSegment(V(38, 1, 0), V(28, 1, 0)),  # 4
    Part.LineSegment(V(28, 1, 0), V(28, 6, 0)),  # 5
    Part.LineSegment(V(28, 6, 0), V(38, 6, 0)),  # 6
    Part.LineSegment(V(38, 6, 0), V(38, 1, 0)),  # 7
], False)
sketch13.addConstraint([
    Sketcher.Constraint("Coincident", 0, 2, 1, 1),
    Sketcher.Constraint("Coincident", 1, 2, 2, 1),
    Sketcher.Constraint("Coincident", 2, 2, 3, 1),
    Sketcher.Constraint("Coincident", 3, 2, 0, 1),
    Sketcher.Constraint("Coincident", 4, 2, 5, 1),
    Sketcher.Constraint("Coincident", 5, 2, 6, 1),
    Sketcher.Constraint("Coincident", 6, 2, 7, 1),
    Sketcher.Constraint("Coincident", 7, 2, 4, 1),
    Sketcher.Constraint("Vertical", 0),
    Sketcher.Constraint("Horizontal", 1),
    Sketcher.Constraint("Vertical", 2),
    Sketcher.Constraint("Horizontal", 3),
    Sketcher.Constraint("Horizontal", 4),
    Sketcher.Constraint("Vertical", 5),
    Sketcher.Constraint("Horizontal", 6),
    Sketcher.Constraint("Vertical", 7),
    Sketcher.Constraint("Horizontal", 3, 2, 4, 2),
    Sketcher.Constraint("Horizontal", 1, 2, 5, 2),
    Sketcher.Constraint("Equal", 3, 0),
    Sketcher.Constraint("DistanceX", 1, 1, 1, 2, Q("5 mm")),
    Sketcher.Constraint("DistanceY", -1, 1, 2, 2, Q("1 mm")),
    Sketcher.Constraint("DistanceX", 4, 2, 4, 1, Q("10 mm")),
    Sketcher.Constraint("DistanceX", 2, 2, 4, 2, Q("16 mm")),
    Sketcher.Constraint("DistanceX", -1, 1, 0, 2, Q("6.75 mm")),
])
pocket4 = body.newObject("PartDesign::Pocket", "Pocket003")
pocket4.Profile = sketch13
pocket4.Length = 6
pocket4.Reversed = True

# Sketch on XZ plane
sketch14 = body.newObject("Sketcher::SketchObject", "Sketch013")
sketch14.AttachmentSupport = (doc.getObject("XZ_Plane"), [""])
sketch14.MapMode = "FlatFace"
sketch14.AttachmentOffset = App.Placement(V(0, 0, -76), App.Rotation())
sketch14.addGeometry([
    Part.LineSegment(V(26, 1, 0), V(26, 6, 0)),
    Part.LineSegment(V(26, 6, 0), V(39, 6, 0)),
    Part.LineSegment(V(39, 6, 0), V(39, 1, 0)),
    Part.LineSegment(V(39, 1, 0), V(26, 1, 0)),
], False)
sketch14.addConstraint([
    Sketcher.Constraint("Coincident", 0, 2, 1, 1),
    Sketcher.Constraint("Coincident", 1, 2, 2, 1),
    Sketcher.Constraint("Coincident", 2, 2, 3, 1),
    Sketcher.Constraint("Coincident", 3, 2, 0, 1),
    Sketcher.Constraint("Vertical", 0),
    Sketcher.Constraint("Horizontal", 1),
    Sketcher.Constraint("Vertical", 2),
    Sketcher.Constraint("Horizontal", 3),
    Sketcher.Constraint("DistanceY", 0, 1, 0, 2, Q("5 mm")),
    Sketcher.Constraint("DistanceY", -1, 1, 0, 2, Q("6 mm")),
    Sketcher.Constraint("DistanceX", -1, 1, 0, 2, Q("26.5 mm")),
    Sketcher.Constraint("DistanceX", 1, 1, 1, 2, Q("12.7498 mm")),
])
pocket5 = body.newObject("PartDesign::Pocket", "Pocket004")
pocket5.Profile = sketch14
pocket5.Length = 9.5
pocket5.Reversed = True

# Sketch on XY plane
sketch15 = body.newObject("Sketcher::SketchObject", "Sketch014")
sketch15.AttachmentSupport = (doc.getObject("XY_Plane"), [""])
sketch15.MapMode = "FlatFace"
sketch15.AttachmentOffset = App.Placement(V(0, 0, 7), App.Rotation())
sketch15.addGeometry([
    Part.LineSegment(V(6.3, 7, 0), V(6.3, 8.4, 0)),  # 0
    Part.LineSegment(V(6.3, 8.4, 0), V(1.3, 8.4, 0)),  # 1
    Part.LineSegment(V(1.3, 8.4, 0), V(1.3, 7, 0)),  # 2
    Part.LineSegment(V(1.3, 7, 0), V(6.3, 7, 0)),  # 3
    Part.LineSegment(V(6.3, 10.1, 0), V(1.3, 10.1, 0)),  # 4
    Part.LineSegment(V(1.3, 10.1, 0), V(1.3, 8.6, 0)),  # 5
    Part.LineSegment(V(1.3, 8.6, 0), V(6.3, 8.6, 0)),  # 6
    Part.LineSegment(V(6.3, 8.6, 0), V(6.3, 10.1, 0)),  # 7
    Part.LineSegment(V(1.3, 11.8, 0), V(1.3, 10.3, 0)),  # 8
    Part.LineSegment(V(1.3, 10.3, 0), V(6.3, 10.3, 0)),  # 9
    Part.LineSegment(V(6.3, 10.3, 0), V(6.3, 11.8, 0)),  # 10
    Part.LineSegment(V(6.3, 11.8, 0), V(1.3, 11.8, 0)),  # 11
], False)
sketch15.addConstraint([
    Sketcher.Constraint("Coincident", 0, 2, 1, 1),
    Sketcher.Constraint("Coincident", 1, 2, 2, 1),
    Sketcher.Constraint("Coincident", 2, 2, 3, 1),
    Sketcher.Constraint("Coincident", 3, 2, 0, 1),
    Sketcher.Constraint("Coincident", 4, 2, 5, 1),
    Sketcher.Constraint("Coincident", 5, 2, 6, 1),
    Sketcher.Constraint("Coincident", 6, 2, 7, 1),
    Sketcher.Constraint("Coincident", 7, 2, 4, 1),
    Sketcher.Constraint("Coincident", 8, 2, 9, 1),
    Sketcher.Constraint("Coincident", 9, 2, 10, 1),
    Sketcher.Constraint("Coincident", 10, 2, 11, 1),
    Sketcher.Constraint("Coincident", 11, 2, 8, 1),
    Sketcher.Constraint("Vertical", 0),
    Sketcher.Constraint("Horizontal", 1),
    Sketcher.Constraint("Vertical", 2),
    Sketcher.Constraint("Horizontal", 3),
    Sketcher.Constraint("Horizontal", 4),
    Sketcher.Constraint("Vertical", 5),
    Sketcher.Constraint("Horizontal", 6),
    Sketcher.Constraint("Vertical", 7),
    Sketcher.Constraint("Vertical", 8),
    Sketcher.Constraint("Horizontal", 9),
    Sketcher.Constraint("Vertical", 10),
    Sketcher.Constraint("Horizontal", 11),
    Sketcher.Constraint("Vertical", 2, 2, 4, 2),
    Sketcher.Constraint("Vertical", 3, 2, 6, 2),
    Sketcher.Constraint("Vertical", 5, 2, 8, 2),
    Sketcher.Constraint("Vertical", 7, 2, 9, 2),
    Sketcher.Constraint("Equal", 2, 5),
    Sketcher.Constraint("Equal", 7, 8),
    Sketcher.Constraint("DistanceY", 0, 1, 0, 2, Q("1.47 mm")),
    Sketcher.Constraint("DistanceY", 1, 2, 5, 2, Q("0.2 mm")),
    Sketcher.Constraint("DistanceY", 4, 2, 8, 2, Q("0.2 mm")),
    Sketcher.Constraint("DistanceX", 1, 2, 1, 1, Q("4.9994 mm")),
    Sketcher.Constraint("DistanceY", -1, 1, 0, 2, Q("8.433 mm")),
    Sketcher.Constraint("DistanceX", -1, 1, 0, 2, Q("6.2628 mm")),
])
pocket6 = body.newObject("PartDesign::Pocket", "Pocket005")
pocket6.Profile = sketch15
pocket6.Length = 1

# Sketch on XY plane
sketch16 = body.newObject("Sketcher::SketchObject", "Sketch015")
sketch16.AttachmentSupport = (doc.getObject("XY_Plane"), [""])
sketch16.MapMode = "FlatFace"
sketch16.AttachmentOffset = App.Placement(V(0, 0, 7), App.Rotation())
sketch16.addGeometry([
    Part.LineSegment(V(1.26, 11.77, 0), V(1.06, 11.77, 0)),  # 0
    Part.LineSegment(V(1.06, 11.77, 0), V(1.06, 6.96, 0)),  # 1
    Part.LineSegment(V(1.06, 6.96, 0), V(1.26, 6.96, 0)),  # 2
    Part.LineSegment(V(1.26, 6.96, 0), V(1.26, 11.77, 0)),  # 3
    Part.LineSegment(V(6.46, 11.77, 0), V(6.26, 11.77, 0)),  # 4
    Part.LineSegment(V(6.26, 11.77, 0), V(6.26, 6.96, 0)),  # 5
    Part.LineSegment(V(6.26, 6.96, 0), V(6.46, 6.96, 0)),  # 6
    Part.LineSegment(V(6.46, 6.96, 0), V(6.46, 11.77, 0)),  # 7
], False)
sketch16.addConstraint([
    Sketcher.Constraint("Coincident", 0, 2, 1, 1),
    Sketcher.Constraint("Coincident", 1, 2, 2, 1),
    Sketcher.Constraint("Coincident", 2, 2, 3, 1),
    Sketcher.Constraint("Coincident", 3, 2, 0, 1),
    Sketcher.Constraint("Coincident", 4, 2, 5, 1),
    Sketcher.Constraint("Coincident", 5, 2, 6, 1),
    Sketcher.Constraint("Coincident", 6, 2, 7, 1),
    Sketcher.Constraint("Coincident", 7, 2, 4, 1),
    Sketcher.Constraint("Horizontal", 0),
    Sketcher.Constraint("Vertical", 1),
    Sketcher.Constraint("Horizontal", 2),
    Sketcher.Constraint("Vertical", 3),
    Sketcher.Constraint("Horizontal", 4),
    Sketcher.Constraint("Vertical", 5),
    Sketcher.Constraint("Horizontal", 6),
    Sketcher.Constraint("Vertical", 7),
    Sketcher.Constraint("Horizontal", 3, 2, 4, 2),
    Sketcher.Constraint("Horizontal", 2, 2, 5, 2),
    Sketcher.Constraint("Equal", 2, 4),
    Sketcher.Constraint("DistanceX", 0, 2, 0, 1, Q("0.2 mm")),
    Sketcher.Constraint("DistanceY", 1, 2, 1, 1, Q("4.81 mm")),
    Sketcher.Constraint("DistanceY", -1, 1, 0, 2, Q("11.773 mm")),
    Sketcher.Constraint("DistanceX", -1, 1, 0, 2, Q("1.0634 mm")),
    Sketcher.Constraint("DistanceX", -1, 1, 4, 2, Q("6.2628 mm")),
])
pocket7 = body.newObject("PartDesign::Pocket", "Pocket006")
pocket7.Profile = sketch16
pocket7.Length = 1

# Sketch on XY plane
sketch17 = body.newObject("Sketcher::SketchObject", "Sketch016")
sketch17.AttachmentSupport = (doc.getObject("XY_Plane"), [""])
sketch17.MapMode = "FlatFace"
sketch17.AttachmentOffset = App.Placement(V(0, 0, 7), App.Rotation())
sketch17.addGeometry([
    Part.LineSegment(V(1.3, 10.5, 0), V(1.3, 10, 0)),  # 0
    Part.LineSegment(V(1.3, 10, 0), V(6.3, 10, 0)),  # 1
    Part.LineSegment(V(6.3, 10, 0), V(6.3, 10.5, 0)),  # 2
    Part.LineSegment(V(6.3, 10.5, 0), V(1.3, 10.5, 0)),  # 3
    Part.LineSegment(V(1.3, 8.8, 0), V(1.3, 8.3, 0)),  # 4
    Part.LineSegment(V(1.3, 8.3, 0), V(6.3, 8.3, 0)),  # 5
    Part.LineSegment(V(6.3, 8.3, 0), V(6.3, 8.8, 0)),  # 6
    Part.LineSegment(V(6.3, 8.8, 0), V(1.3, 8.8, 0)),  # 7
], False)
sketch17.addConstraint([
    Sketcher.Constraint("Coincident", 0, 2, 1, 1),
    Sketcher.Constraint("Coincident", 1, 2, 2, 1),
    Sketcher.Constraint("Coincident", 2, 2, 3, 1),
    Sketcher.Constraint("Coincident", 3, 2, 0, 1),
    Sketcher.Constraint("Coincident", 4, 2, 5, 1),
    Sketcher.Constraint("Coincident", 5, 2, 6, 1),
    Sketcher.Constraint("Coincident", 6, 2, 7, 1),
    Sketcher.Constraint("Coincident", 7, 2, 4, 1),
    Sketcher.Constraint("Vertical", 0),
    Sketcher.Constraint("Horizontal", 1),
    Sketcher.Constraint("Vertical", 2),
    Sketcher.Constraint("Horizontal", 3),
    Sketcher.Constraint("Vertical", 4),
    Sketcher.Constraint("Horizontal", 5),
    Sketcher.Constraint("Vertical", 6),
    Sketcher.Constraint("Horizontal", 7),
    Sketcher.Constraint("Vertical", 3, 2, 4, 2),
    Sketcher.Constraint("Vertical", 2, 2, 5, 2),
    Sketcher.Constraint("Equal", 2, 4),
    Sketcher.Constraint("DistanceY", 0, 2, 0, 1, Q("0.5 mm")),
    Sketcher.Constraint("DistanceY", 4, 2, 0, 2, Q("1.67 mm")),
    Sketcher.Constraint("DistanceX", 1, 1, 1, 2, Q("4.9994 mm")),
    Sketcher.Constraint("DistanceY", -1, 1, 0, 2, Q("9.953 mm")),
    Sketcher.Constraint("DistanceX", -1, 1, 0, 2, Q("1.2634 mm")),
])
pad10 = body.newObject("PartDesign::Pad", "Pad009")
pad10.Profile = sketch17
pad10.Length = 1
pad10.Reversed = True

doc.recompute()
